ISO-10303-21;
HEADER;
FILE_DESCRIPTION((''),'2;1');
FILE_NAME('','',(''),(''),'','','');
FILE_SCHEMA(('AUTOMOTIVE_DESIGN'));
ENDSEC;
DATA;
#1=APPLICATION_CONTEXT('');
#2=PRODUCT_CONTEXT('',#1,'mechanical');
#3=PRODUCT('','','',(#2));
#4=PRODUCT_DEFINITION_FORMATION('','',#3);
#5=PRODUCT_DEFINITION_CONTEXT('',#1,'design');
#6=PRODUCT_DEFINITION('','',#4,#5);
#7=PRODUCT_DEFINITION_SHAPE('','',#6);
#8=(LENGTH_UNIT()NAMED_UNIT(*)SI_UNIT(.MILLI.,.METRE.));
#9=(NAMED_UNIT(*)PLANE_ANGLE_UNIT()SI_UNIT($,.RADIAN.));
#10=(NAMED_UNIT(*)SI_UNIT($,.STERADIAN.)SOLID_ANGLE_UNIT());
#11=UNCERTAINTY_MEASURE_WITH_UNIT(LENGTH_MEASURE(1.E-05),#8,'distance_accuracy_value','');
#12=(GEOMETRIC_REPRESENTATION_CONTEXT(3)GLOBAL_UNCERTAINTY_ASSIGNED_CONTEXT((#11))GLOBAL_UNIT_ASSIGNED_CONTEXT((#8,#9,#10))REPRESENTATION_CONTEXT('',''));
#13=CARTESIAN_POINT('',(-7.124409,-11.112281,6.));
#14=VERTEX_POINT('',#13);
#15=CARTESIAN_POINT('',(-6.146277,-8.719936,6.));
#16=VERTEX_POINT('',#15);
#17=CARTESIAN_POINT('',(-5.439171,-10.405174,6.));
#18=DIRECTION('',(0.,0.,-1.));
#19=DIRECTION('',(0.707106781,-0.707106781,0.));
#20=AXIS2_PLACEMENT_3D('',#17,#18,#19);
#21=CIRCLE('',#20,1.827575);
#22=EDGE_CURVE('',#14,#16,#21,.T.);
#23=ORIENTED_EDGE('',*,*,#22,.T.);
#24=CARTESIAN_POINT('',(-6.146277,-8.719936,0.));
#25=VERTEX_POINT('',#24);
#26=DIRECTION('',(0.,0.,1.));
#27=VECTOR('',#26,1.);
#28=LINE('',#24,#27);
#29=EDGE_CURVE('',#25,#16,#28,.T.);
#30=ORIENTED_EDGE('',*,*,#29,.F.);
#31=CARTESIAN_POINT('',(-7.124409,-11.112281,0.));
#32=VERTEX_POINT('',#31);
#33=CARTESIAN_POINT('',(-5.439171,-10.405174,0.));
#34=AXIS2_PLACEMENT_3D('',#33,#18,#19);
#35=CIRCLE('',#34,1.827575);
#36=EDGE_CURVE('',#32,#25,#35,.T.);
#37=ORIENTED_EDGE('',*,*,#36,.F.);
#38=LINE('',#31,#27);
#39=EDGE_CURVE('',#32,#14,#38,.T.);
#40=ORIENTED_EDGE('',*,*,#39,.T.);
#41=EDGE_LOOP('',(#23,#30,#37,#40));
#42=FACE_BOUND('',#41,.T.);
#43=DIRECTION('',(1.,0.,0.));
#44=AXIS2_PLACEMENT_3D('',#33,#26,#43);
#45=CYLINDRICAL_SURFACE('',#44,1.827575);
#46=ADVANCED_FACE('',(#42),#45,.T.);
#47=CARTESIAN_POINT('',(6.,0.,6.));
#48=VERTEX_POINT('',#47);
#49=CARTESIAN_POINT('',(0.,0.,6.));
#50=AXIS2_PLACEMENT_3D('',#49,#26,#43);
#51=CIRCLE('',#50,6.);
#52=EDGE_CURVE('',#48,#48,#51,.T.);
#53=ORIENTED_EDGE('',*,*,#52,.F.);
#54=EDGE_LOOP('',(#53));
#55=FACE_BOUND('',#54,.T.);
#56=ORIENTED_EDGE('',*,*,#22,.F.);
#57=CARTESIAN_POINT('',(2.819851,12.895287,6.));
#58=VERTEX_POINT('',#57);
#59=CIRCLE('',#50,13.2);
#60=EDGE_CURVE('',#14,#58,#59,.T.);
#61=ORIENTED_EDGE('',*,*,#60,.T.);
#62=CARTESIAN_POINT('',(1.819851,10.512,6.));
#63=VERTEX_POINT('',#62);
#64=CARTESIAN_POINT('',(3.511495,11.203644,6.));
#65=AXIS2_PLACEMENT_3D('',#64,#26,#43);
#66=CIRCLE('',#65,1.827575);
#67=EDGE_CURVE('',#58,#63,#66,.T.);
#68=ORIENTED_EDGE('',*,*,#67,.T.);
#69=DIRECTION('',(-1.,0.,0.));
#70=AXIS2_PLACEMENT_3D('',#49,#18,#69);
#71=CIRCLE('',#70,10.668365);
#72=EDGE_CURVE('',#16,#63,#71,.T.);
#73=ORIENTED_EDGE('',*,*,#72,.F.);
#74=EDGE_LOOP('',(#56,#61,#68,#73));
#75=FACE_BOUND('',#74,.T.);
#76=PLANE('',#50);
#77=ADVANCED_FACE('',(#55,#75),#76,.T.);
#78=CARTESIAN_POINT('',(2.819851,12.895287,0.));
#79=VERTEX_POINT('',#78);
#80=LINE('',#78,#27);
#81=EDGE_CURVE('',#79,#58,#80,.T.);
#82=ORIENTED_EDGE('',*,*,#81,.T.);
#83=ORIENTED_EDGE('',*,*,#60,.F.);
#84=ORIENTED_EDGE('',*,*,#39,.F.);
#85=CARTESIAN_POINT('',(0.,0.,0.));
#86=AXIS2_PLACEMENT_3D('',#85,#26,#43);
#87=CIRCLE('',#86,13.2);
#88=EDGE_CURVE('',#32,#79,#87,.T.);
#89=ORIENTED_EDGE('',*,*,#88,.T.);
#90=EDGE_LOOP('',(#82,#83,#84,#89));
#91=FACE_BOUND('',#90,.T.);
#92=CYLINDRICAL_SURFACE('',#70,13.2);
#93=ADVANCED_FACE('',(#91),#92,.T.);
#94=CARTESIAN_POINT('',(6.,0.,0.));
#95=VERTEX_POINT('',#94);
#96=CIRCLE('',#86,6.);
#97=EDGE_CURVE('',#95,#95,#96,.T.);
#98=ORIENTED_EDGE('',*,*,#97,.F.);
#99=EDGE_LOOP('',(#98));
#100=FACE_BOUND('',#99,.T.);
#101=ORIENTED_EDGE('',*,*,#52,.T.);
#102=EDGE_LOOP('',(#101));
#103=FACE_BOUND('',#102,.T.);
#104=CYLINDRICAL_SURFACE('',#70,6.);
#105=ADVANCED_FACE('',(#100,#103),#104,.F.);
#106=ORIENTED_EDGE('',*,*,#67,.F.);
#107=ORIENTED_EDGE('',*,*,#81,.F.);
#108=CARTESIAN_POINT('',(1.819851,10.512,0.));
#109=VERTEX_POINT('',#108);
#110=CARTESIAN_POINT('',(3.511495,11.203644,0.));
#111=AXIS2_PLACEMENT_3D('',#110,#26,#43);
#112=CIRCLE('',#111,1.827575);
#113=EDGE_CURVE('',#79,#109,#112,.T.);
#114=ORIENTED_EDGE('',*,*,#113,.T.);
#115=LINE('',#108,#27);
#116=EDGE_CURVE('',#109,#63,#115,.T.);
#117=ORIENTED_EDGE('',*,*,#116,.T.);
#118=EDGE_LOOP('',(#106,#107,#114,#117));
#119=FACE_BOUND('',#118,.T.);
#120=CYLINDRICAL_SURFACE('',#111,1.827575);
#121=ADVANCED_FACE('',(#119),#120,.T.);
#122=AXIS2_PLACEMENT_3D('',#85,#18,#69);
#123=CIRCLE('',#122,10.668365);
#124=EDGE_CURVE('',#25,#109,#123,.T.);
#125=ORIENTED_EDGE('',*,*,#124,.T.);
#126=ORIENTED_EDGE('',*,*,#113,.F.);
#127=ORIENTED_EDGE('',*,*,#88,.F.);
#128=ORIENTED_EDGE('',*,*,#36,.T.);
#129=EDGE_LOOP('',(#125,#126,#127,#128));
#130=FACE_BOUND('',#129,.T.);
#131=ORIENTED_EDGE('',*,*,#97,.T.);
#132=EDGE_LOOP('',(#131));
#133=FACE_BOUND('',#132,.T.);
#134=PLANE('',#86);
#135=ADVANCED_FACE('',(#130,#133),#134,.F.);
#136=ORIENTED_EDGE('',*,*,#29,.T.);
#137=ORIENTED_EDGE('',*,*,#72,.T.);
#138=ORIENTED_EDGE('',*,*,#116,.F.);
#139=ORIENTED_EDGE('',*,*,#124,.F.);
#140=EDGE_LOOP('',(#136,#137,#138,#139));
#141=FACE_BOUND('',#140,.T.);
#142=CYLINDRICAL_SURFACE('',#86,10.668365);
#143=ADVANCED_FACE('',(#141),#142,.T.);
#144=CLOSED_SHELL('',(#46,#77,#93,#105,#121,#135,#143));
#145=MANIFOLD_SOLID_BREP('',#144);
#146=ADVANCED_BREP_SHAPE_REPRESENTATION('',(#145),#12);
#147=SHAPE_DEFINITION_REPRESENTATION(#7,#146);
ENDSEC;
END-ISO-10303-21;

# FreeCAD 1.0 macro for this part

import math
import FreeCAD as App
import Part
import Sketcher

doc = App.newDocument("Part")
body = doc.addObject("PartDesign::Body", "Body")

sketch1 = body.newObject("Sketcher::SketchObject", "Sketch")
sketch1.AttachmentSupport = (doc.getObject("XY_Plane"), [""])
sketch1.MapMode = "FlatFace"
sketch1.addGeometry([
    Part.Circle(App.Vector(0, 0, 0), App.Vector(0, 0, 1), 13),
    Part.Circle(App.Vector(0, 0, 0), App.Vector(0, 0, 1), 6),
], False)
sketch1.addConstraint([
    Sketcher.Constraint("Coincident", 0, 3, -1, 1),
    Sketcher.Constraint("Coincident", 1, 3, -1, 1),
    Sketcher.Constraint("Diameter", 1, 12.0),
    Sketcher.Constraint("Diameter", 0, 26.4),
])
pad1 = body.newObject("PartDesign::Pad", "Pad")
pad1.Profile = sketch1
pad1.Length = 6

sketch2 = body.newObject("Sketcher::SketchObject", "Sketch001")
sketch2.AttachmentSupport = (doc.getObject("XY_Plane"), [""])
sketch2.MapMode = "FlatFace"
sketch2.AttachmentOffset = App.Placement(App.Vector(0, 0, 6), App.Rotation())
sketch2.addGeometry([
    Part.ArcOfCircle(Part.Circle(App.Vector(0, 0, 0), App.Vector(0, 0, 1), 13.2), math.radians(78), math.radians(102)),
    Part.ArcOfCircle(Part.Circle(App.Vector(-3.5, 11.2, 0), App.Vector(0, 0, 1), 1.8), math.radians(-22), math.radians(68)),
    Part.ArcOfCircle(Part.Circle(App.Vector(0, 0, 0), App.Vector(0, 0, 1), 10.7), math.radians(80.18), math.radians(99.82)),
    Part.ArcOfCircle(Part.Circle(App.Vector(3.5, 11.2, 0), App.Vector(0, 0, 1), 1.8), math.radians(112), math.radians(202)),
], False)
sketch2.addConstraint([
    Sketcher.Constraint("Coincident", 0, 2, 1, 2),
    Sketcher.Constraint("Coincident", 1, 1, 2, 2),
    Sketcher.Constraint("Coincident", 2, 1, 3, 2),
    Sketcher.Constraint("Coincident", 3, 1, 0, 1),
    Sketcher.Constraint("Coincident", 0, 3, -1, 1),
    Sketcher.Constraint("Coincident", 2, 3, -1, 1),
    Sketcher.Constraint("Equal", 1, 3),
    Sketcher.Constraint("Symmetric", 1, 3, 3, 3, -2),
    Sketcher.Constraint("Radius", 0, 13.2),
    Sketcher.Constraint("DistanceX", 0, 2, 1, 1, 1.0),
    Sketcher.Constraint("DistanceY", -1, 1, 1, 1, 10.512),
    Sketcher.Constraint("Radius", 1, 1.827575),
    Sketcher.Constraint("Radius", 2, 10.668365),
])
pocket1 = body.newObject("PartDesign::Pocket", "Pocket")
pocket1.Profile = sketch2
pocket1.Type = "ThroughAll"

sketch3 = body.newObject("Sketcher::SketchObject", "Sketch002")
sketch3.AttachmentSupport = (doc.getObject("XY_Plane"), [""])
sketch3.MapMode = "FlatFace"
sketch3.addGeometry([
    Part.Circle(App.Vector(0, 0, 0), App.Vector(0, 0, 1), 13),
    Part.Circle(App.Vector(0, 0, 0), App.Vector(0, 0, 1), 6),
], False)
sketch3.addConstraint([
    Sketcher.Constraint("Coincident", 0, 3, -1, 1),
    Sketcher.Constraint("Coincident", 1, 3, -1, 1),
    Sketcher.Constraint("Diameter", 1, 12.0),
    Sketcher.Constraint("Diameter", 0, 26.4),
])
pad2 = body.newObject("PartDesign::Pad", "Pad001")
pad2.Profile = sketch3
pad2.Length = 6

sketch4 = body.newObject("Sketcher::SketchObject", "Sketch003")
sketch4.AttachmentSupport = (doc.getObject("XY_Plane"), [""])
sketch4.MapMode = "FlatFace"
sketch4.AttachmentOffset = App.Placement(App.Vector(0, 0, 6), App.Rotation())
sketch4.addGeometry([
    Part.ArcOfCircle(Part.Circle(App.Vector(0, 0, 0), App.Vector(0, 0, 1), 13.2), math.radians(78), math.radians(102)),
    Part.ArcOfCircle(Part.Circle(App.Vector(-3.5, 11.2, 0), App.Vector(0, 0, 1), 1.8), math.radians(-22), math.radians(68)),
    Part.ArcOfCircle(Part.Circle(App.Vector(0, 0, 0), App.Vector(0, 0, 1), 10.7), math.radians(80.18), math.radians(99.82)),
    Part.ArcOfCircle(Part.Circle(App.Vector(3.5, 11.2, 0), App.Vector(0, 0, 1), 1.8), math.radians(112), math.radians(202)),
], False)
sketch4.addConstraint([
    Sketcher.Constraint("Coincident", 0, 2, 1, 2),
    Sketcher.Constraint("Coincident", 1, 1, 2, 2),
    Sketcher.Constraint("Coincident", 2, 1, 3, 2),
    Sketcher.Constraint("Coincident", 3, 1, 0, 1),
    Sketcher.Constraint("Coincident", 0, 3, -1, 1),
    Sketcher.Constraint("Coincident", 2, 3, -1, 1),
    Sketcher.Constraint("Equal", 1, 3),
    Sketcher.Constraint("Symmetric", 1, 3, 3, 3, -2),
    Sketcher.Constraint("Radius", 0, 13.2),
    Sketcher.Constraint("DistanceX", 0, 2, 1, 1, 1.0),
    Sketcher.Constraint("DistanceY", -1, 1, 1, 1, 10.512),
    Sketcher.Constraint("Radius", 1, 1.827575),
    Sketcher.Constraint("Radius", 2, 10.668365),
])
pocket2 = body.newObject("PartDesign::Pocket", "Pocket001")
pocket2.Profile = sketch4
pocket2.Type = "ThroughAll"
doc.recompute()

polarpattern = body.newObject("PartDesign::PolarPattern", "PolarPattern")
polarpattern.Originals = [pocket2]
polarpattern.Axis = (doc.getObject("Z_Axis"), [""])
polarpattern.Angle = 135
polarpattern.Occurrences = 10
body.Tip = polarpattern

doc.recompute()
